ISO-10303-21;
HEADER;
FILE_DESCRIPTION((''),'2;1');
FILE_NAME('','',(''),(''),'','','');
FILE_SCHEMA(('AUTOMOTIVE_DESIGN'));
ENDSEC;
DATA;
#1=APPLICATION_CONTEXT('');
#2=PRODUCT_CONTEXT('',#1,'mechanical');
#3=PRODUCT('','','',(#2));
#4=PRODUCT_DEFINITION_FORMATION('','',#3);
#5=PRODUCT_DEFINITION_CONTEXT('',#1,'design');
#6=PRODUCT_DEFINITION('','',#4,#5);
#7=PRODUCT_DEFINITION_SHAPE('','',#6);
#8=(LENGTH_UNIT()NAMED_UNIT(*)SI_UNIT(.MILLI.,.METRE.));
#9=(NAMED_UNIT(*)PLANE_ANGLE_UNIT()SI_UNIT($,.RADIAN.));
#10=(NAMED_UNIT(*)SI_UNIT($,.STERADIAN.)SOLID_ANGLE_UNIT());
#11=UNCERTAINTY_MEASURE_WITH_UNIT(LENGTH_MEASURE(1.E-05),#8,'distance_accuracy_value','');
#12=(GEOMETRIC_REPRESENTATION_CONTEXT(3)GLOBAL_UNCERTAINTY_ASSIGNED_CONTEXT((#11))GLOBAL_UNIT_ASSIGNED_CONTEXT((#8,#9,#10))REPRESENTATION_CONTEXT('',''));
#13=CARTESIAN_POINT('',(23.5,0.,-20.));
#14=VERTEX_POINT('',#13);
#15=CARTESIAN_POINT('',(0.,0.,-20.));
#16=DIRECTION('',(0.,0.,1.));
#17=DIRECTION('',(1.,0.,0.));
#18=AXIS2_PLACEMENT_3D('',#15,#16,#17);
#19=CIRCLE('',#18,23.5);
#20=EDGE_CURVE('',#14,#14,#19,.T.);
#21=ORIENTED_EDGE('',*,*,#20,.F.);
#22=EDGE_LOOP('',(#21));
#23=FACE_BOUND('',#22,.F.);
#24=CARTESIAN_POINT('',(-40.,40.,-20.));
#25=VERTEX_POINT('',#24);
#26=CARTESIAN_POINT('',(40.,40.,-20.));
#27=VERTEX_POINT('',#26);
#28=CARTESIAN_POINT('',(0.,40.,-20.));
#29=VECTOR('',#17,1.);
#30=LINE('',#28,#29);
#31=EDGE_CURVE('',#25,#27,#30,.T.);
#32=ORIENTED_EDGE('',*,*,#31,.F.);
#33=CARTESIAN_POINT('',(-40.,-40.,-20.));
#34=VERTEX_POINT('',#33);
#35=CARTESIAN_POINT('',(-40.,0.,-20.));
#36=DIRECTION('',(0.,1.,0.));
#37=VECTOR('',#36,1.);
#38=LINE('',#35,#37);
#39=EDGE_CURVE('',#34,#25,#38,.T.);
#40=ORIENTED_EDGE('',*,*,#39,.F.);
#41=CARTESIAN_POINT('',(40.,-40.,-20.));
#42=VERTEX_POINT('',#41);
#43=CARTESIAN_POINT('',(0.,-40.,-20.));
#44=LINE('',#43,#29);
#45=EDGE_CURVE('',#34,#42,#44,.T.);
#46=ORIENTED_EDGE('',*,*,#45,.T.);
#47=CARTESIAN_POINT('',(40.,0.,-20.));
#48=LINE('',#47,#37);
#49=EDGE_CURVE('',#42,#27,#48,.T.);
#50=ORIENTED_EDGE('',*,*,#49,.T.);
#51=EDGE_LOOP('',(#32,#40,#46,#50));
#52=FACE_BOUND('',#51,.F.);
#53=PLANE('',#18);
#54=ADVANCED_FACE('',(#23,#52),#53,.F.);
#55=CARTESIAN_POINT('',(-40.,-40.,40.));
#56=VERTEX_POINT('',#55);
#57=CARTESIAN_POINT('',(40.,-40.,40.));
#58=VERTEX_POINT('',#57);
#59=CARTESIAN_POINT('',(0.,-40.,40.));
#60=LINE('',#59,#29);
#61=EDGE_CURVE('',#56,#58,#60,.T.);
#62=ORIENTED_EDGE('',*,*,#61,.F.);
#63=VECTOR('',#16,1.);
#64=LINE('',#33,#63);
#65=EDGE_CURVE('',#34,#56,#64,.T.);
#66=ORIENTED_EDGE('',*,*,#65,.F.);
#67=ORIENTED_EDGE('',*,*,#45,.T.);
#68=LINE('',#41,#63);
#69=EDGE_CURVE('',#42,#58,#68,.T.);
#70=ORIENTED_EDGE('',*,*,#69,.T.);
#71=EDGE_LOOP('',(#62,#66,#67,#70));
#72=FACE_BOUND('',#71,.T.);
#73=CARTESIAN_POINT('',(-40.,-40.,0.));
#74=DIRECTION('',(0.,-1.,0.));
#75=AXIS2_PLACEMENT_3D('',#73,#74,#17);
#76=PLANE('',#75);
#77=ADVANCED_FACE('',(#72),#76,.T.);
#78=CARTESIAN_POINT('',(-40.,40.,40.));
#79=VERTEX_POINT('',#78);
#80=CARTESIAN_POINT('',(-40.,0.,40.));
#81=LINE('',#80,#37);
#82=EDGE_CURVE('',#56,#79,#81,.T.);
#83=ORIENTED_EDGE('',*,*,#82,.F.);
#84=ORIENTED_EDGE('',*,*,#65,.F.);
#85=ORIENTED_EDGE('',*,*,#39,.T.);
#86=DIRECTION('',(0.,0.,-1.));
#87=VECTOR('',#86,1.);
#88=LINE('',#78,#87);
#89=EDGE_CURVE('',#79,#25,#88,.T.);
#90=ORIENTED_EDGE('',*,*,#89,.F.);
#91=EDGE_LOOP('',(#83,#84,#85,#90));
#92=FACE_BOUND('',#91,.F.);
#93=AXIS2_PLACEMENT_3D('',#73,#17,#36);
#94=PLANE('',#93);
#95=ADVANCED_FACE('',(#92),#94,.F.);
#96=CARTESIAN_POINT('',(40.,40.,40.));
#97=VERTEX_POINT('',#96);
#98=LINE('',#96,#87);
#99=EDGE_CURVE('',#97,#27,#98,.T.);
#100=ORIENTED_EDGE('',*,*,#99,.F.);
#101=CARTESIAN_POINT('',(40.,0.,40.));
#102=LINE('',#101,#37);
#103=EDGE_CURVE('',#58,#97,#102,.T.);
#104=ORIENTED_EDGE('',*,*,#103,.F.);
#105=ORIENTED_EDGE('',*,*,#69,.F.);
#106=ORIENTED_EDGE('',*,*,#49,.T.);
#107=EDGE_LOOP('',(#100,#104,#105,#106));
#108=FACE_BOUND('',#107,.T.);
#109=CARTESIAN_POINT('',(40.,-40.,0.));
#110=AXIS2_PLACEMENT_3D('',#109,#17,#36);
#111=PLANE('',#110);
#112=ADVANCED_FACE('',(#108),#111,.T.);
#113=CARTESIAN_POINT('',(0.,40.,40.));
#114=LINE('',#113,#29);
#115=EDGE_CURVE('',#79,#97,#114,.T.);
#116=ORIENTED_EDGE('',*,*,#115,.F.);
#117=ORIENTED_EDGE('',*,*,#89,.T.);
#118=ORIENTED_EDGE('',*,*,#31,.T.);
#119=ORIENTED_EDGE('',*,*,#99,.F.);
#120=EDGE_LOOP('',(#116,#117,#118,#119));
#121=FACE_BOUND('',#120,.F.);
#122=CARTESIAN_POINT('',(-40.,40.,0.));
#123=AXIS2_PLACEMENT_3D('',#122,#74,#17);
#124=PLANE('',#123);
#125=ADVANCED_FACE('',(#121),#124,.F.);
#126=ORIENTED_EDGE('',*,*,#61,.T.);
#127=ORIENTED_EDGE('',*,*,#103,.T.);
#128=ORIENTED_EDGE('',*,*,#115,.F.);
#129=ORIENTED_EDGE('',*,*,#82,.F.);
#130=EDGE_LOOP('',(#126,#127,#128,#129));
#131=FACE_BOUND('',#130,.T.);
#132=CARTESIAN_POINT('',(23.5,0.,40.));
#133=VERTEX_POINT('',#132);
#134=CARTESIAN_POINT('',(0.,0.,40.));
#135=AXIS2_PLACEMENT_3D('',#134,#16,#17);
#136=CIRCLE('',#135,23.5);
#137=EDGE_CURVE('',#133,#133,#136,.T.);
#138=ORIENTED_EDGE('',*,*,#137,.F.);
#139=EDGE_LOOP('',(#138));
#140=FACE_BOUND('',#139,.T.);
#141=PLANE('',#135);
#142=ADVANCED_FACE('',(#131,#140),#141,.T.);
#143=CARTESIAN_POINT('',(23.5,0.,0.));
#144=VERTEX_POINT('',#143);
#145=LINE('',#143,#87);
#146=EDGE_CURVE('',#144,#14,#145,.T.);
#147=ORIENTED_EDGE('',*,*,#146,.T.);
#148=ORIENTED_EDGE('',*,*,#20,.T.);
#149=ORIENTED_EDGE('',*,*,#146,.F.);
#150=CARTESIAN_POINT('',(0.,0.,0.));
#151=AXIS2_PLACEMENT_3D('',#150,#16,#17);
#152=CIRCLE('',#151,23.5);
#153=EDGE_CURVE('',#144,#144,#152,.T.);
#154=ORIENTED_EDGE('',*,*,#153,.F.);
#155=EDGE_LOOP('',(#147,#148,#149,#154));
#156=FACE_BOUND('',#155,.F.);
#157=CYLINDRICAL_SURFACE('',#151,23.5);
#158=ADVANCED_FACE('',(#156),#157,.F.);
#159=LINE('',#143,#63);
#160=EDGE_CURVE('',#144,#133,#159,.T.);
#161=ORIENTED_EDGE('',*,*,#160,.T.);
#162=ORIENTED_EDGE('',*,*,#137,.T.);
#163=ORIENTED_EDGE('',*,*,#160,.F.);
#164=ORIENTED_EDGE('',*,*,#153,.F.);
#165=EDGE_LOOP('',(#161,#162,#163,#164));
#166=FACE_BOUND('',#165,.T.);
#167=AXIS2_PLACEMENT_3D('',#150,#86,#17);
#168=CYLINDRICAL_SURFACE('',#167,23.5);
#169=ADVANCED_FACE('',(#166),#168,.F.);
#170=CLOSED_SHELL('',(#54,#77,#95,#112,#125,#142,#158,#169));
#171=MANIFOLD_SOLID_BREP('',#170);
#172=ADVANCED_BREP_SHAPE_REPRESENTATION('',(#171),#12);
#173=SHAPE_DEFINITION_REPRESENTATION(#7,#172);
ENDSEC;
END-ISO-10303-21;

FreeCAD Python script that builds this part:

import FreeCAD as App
import Part
import Sketcher

V = App.Vector
Q = App.Units.Quantity

doc = App.newDocument("Part")
params = doc.addObject("Spreadsheet::Sheet", "Params")
for row, (alias, value) in enumerate([
    ("sketch1_diameter", "47 mm"),
    ("sketch1_width", "80 mm"),
    ("pad1_length", "40 mm"),
    ("pad1_length2", "20 mm"),
], start=1):
    params.set(f"A{row}", alias)
    params.set(f"B{row}", "=" + value)
    params.setAlias(f"B{row}", alias)

body = doc.addObject("PartDesign::Body", "Body")

# Sketch on XY plane
sketch1 = body.newObject("Sketcher::SketchObject", "Sketch")
sketch1.AttachmentSupport = (doc.getObject("XY_Plane"), [""])
sketch1.MapMode = "FlatFace"
sketch1.addGeometry(Part.LineSegment(V(-40, 40, 0), V(-40, -40, 0)), False)
sketch1.addGeometry(Part.LineSegment(V(-40, -40, 0), V(40, -40, 0)), False)
sketch1.addGeometry(Part.LineSegment(V(40, -40, 0), V(40, 40, 0)), False)
sketch1.addGeometry(Part.LineSegment(V(40, 40, 0), V(-40, 40, 0)), False)
sketch1.addGeometry(Part.Circle(V(0, 0, 0), V(0, 0, 1), 24), False)
sketch1.addConstraint(Sketcher.Constraint("Coincident", 0, 2, 1, 1))
sketch1.addConstraint(Sketcher.Constraint("Coincident", 1, 2, 2, 1))
sketch1.addConstraint(Sketcher.Constraint("Coincident", 2, 2, 3, 1))
sketch1.addConstraint(Sketcher.Constraint("Coincident", 3, 2, 0, 1))
sketch1.addConstraint(Sketcher.Constraint("Vertical", 0))
sketch1.addConstraint(Sketcher.Constraint("Horizontal", 1))
sketch1.addConstraint(Sketcher.Constraint("Vertical", 2))
sketch1.addConstraint(Sketcher.Constraint("Horizontal", 3))
sketch1.addConstraint(Sketcher.Constraint("Coincident", 4, 3, -1, 1))
sketch1.addConstraint(Sketcher.Constraint("Symmetric", 0, 2, 2, 2, -1, 1))
sketch1.addConstraint(Sketcher.Constraint("Equal", 3, 0))
sketch1.addConstraint(Sketcher.Constraint("Diameter", 4, Q("47 mm")))
sketch1.addConstraint(Sketcher.Constraint("DistanceX", 1, 1, 1, 2, Q("80 mm")))
sketch1.setExpression("Constraints[11]", "Params.sketch1_diameter")
sketch1.setExpression("Constraints[12]", "Params.sketch1_width")
pad1 = body.newObject("PartDesign::Pad", "Pad")
pad1.Profile = sketch1
pad1.Type = "TwoLengths"
pad1.setExpression("Length", "Params.pad1_length")
pad1.setExpression("Length2", "Params.pad1_length2")

doc.recompute()
